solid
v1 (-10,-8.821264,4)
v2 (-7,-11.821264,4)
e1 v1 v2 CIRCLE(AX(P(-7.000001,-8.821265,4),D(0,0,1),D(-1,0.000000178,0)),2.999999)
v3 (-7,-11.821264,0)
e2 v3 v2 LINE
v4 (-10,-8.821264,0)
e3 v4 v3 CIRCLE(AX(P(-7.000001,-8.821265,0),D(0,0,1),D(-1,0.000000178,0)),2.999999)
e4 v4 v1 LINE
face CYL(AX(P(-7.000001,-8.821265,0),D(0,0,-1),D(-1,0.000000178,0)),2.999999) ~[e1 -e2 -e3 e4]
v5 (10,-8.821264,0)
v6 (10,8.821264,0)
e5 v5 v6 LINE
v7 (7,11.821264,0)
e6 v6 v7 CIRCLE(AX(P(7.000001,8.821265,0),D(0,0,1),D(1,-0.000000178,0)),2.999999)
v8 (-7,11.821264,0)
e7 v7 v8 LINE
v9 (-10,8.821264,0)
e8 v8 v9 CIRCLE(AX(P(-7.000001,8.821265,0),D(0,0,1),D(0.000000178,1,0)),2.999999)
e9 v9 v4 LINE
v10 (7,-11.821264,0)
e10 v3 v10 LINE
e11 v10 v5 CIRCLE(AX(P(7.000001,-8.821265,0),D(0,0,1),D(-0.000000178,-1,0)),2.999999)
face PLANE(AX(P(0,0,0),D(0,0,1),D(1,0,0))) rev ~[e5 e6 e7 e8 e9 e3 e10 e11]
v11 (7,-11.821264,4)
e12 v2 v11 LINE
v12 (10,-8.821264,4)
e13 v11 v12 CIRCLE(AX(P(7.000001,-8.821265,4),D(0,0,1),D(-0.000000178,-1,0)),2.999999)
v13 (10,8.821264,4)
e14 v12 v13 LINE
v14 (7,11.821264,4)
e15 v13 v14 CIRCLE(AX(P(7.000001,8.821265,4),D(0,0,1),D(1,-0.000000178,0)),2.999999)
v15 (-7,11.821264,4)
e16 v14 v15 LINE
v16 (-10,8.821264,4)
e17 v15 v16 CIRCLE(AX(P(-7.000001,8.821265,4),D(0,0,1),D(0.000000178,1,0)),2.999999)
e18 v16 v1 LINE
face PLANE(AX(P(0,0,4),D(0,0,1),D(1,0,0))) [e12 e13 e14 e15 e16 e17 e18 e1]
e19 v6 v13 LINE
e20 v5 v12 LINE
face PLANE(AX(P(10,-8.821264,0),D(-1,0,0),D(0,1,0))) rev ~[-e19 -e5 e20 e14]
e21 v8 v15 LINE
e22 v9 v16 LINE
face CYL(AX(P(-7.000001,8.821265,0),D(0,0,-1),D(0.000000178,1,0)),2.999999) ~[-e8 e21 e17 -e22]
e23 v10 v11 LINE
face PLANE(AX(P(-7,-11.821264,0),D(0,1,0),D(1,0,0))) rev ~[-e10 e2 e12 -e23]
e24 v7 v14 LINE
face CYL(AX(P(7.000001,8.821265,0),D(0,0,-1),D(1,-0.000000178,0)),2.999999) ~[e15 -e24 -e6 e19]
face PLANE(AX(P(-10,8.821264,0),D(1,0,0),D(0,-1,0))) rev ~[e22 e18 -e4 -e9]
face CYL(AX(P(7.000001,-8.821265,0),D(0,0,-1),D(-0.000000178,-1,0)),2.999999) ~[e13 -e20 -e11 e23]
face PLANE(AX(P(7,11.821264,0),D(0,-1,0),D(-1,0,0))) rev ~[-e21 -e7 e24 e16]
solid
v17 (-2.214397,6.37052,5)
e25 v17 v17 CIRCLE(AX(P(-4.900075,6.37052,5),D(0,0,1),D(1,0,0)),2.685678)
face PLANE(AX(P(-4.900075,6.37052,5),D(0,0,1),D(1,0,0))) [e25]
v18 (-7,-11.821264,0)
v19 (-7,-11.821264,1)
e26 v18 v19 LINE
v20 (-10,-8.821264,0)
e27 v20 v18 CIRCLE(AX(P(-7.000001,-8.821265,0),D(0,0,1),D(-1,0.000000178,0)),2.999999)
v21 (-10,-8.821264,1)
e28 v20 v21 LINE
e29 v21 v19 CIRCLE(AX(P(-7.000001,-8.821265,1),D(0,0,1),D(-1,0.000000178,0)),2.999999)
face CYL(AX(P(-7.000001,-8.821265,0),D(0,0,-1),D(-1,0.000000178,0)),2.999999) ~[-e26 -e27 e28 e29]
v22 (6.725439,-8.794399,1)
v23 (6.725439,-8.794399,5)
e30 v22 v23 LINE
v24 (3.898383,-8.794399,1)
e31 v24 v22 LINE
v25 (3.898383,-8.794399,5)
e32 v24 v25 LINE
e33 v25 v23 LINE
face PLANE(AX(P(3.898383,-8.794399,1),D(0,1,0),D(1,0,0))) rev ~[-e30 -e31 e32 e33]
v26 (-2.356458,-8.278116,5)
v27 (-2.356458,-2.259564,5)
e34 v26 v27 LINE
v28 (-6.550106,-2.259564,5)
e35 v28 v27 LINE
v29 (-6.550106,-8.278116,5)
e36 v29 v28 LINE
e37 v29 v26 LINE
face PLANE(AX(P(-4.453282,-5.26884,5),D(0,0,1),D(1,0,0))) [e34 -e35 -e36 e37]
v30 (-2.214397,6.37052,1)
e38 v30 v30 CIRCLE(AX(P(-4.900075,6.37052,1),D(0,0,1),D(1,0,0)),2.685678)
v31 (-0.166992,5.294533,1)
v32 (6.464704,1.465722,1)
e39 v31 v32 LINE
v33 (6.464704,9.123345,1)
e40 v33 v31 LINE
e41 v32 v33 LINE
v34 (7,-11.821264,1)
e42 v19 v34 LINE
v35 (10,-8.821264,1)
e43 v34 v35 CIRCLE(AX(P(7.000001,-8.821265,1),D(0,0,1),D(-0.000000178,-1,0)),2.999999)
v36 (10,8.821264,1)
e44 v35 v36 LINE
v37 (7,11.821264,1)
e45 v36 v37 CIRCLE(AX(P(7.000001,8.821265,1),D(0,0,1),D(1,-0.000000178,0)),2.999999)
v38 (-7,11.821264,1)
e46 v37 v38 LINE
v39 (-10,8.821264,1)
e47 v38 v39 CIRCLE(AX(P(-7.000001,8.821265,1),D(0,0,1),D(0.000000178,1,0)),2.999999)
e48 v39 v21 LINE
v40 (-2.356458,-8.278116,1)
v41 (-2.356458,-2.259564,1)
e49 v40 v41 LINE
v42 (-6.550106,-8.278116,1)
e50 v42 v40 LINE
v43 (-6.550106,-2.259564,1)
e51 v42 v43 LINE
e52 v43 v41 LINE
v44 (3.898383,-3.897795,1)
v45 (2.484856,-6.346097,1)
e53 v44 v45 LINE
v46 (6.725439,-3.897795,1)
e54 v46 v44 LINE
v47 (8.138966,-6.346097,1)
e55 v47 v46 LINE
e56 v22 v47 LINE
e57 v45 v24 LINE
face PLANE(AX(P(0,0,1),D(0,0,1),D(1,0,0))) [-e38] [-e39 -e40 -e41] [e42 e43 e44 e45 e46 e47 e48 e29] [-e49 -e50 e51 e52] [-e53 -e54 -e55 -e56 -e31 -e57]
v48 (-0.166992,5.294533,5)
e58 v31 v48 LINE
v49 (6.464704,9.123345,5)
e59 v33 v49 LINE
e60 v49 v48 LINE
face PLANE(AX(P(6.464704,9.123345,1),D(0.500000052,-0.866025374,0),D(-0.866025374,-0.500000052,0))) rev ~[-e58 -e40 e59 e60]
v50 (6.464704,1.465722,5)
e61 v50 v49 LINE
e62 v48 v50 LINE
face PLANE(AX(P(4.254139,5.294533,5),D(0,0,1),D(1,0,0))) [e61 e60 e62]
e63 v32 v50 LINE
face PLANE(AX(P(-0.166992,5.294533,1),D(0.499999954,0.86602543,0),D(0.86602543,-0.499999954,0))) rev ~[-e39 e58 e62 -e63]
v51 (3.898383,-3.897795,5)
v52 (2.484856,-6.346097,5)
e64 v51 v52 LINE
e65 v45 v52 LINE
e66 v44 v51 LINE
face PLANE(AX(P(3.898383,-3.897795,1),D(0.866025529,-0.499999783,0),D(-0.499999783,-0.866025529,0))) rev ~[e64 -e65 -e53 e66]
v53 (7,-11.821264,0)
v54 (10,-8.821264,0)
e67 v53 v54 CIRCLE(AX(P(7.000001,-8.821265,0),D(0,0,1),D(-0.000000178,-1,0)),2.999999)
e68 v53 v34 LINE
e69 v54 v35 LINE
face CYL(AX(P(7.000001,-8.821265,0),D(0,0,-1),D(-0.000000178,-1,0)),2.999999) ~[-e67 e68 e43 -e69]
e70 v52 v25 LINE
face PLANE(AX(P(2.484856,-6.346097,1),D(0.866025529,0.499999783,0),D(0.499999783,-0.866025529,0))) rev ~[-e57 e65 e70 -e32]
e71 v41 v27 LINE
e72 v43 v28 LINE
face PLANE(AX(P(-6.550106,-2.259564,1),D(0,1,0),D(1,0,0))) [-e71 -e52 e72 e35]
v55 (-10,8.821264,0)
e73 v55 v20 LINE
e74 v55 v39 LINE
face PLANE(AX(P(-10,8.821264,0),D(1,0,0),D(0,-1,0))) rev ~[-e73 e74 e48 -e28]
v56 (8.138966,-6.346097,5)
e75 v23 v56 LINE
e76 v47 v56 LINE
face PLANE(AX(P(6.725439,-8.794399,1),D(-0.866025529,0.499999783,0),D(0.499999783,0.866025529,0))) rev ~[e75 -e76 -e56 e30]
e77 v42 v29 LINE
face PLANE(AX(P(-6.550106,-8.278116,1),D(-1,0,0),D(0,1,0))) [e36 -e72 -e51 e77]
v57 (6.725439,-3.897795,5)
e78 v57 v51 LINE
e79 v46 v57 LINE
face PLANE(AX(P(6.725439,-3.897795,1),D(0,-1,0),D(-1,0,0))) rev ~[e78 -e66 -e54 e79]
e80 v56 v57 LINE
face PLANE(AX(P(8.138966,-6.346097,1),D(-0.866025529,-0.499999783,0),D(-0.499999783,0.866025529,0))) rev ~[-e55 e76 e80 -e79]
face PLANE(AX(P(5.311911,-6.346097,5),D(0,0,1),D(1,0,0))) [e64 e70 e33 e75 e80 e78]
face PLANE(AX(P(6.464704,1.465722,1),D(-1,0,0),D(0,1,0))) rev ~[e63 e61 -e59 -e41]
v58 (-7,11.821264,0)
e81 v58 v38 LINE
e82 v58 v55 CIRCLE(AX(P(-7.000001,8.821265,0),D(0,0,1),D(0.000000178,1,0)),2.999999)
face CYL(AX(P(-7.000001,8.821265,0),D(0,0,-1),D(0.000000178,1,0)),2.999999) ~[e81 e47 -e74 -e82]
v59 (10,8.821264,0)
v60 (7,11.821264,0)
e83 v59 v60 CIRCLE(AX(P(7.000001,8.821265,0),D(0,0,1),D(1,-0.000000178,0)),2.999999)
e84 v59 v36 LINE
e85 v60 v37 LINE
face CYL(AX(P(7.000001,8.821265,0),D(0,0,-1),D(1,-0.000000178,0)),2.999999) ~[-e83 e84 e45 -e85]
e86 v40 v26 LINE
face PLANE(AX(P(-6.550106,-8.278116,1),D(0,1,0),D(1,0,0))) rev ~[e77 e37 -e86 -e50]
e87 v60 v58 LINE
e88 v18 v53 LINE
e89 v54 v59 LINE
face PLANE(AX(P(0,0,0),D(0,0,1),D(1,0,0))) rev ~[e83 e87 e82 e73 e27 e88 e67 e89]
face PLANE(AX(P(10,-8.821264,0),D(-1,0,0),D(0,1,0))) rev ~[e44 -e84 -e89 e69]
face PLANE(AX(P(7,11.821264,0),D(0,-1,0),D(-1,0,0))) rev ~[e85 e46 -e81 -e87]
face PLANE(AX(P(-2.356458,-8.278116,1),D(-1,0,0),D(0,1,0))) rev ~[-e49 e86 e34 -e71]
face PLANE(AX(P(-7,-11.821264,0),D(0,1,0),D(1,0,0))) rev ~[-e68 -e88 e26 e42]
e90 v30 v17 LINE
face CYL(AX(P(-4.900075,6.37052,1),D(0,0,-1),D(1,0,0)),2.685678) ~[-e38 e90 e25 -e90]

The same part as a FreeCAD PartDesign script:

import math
import FreeCAD as App
import Part
import Sketcher
Q = App.Units.Quantity

doc = App.newDocument("Part")
body = doc.addObject("PartDesign::Body", "Body")

sketch1 = body.newObject("Sketcher::SketchObject", "Sketch")
sketch1.AttachmentSupport = (doc.getObject("XY_Plane"), [""])
sketch1.MapMode = "FlatFace"
sketch1.addGeometry(Part.LineSegment(App.Vector(-7, -11.821264, 0), App.Vector(7, -11.821264, 0)), False)
sketch1.addGeometry(Part.ArcOfCircle(Part.Circle(App.Vector(7.000001, -8.821265, 0), App.Vector(0, 0, 1), 2.999999), math.radians(-90.00001), math.radians(0.00001)), False)
sketch1.addGeometry(Part.LineSegment(App.Vector(10, -8.821264, 0), App.Vector(10, 8.821264, 0)), False)
sketch1.addGeometry(Part.ArcOfCircle(Part.Circle(App.Vector(7.000001, 8.821265, 0), App.Vector(0, 0, 1), 2.999999), math.radians(-0.00001), math.radians(90.00001)), False)
sketch1.addGeometry(Part.LineSegment(App.Vector(7, 11.821264, 0), App.Vector(-7, 11.821264, 0)), False)
sketch1.addGeometry(Part.ArcOfCircle(Part.Circle(App.Vector(-7.000001, 8.821265, 0), App.Vector(0, 0, 1), 2.999999), math.radians(89.99999), math.radians(180.00001)), False)
sketch1.addGeometry(Part.LineSegment(App.Vector(-10, 8.821264, 0), App.Vector(-10, -8.821264, 0)), False)
sketch1.addGeometry(Part.ArcOfCircle(Part.Circle(App.Vector(-7.000001, -8.821265, 0), App.Vector(0, 0, 1), 2.999999), math.radians(179.99999), math.radians(270.00001)), False)
sketch1.addConstraint(Sketcher.Constraint("Tangent", 0, 2, 1, 1))
sketch1.addConstraint(Sketcher.Constraint("Tangent", 1, 2, 2, 1))
sketch1.addConstraint(Sketcher.Constraint("Tangent", 2, 2, 3, 1))
sketch1.addConstraint(Sketcher.Constraint("Tangent", 3, 2, 4, 1))
sketch1.addConstraint(Sketcher.Constraint("Tangent", 4, 2, 5, 1))
sketch1.addConstraint(Sketcher.Constraint("Tangent", 5, 2, 6, 1))
sketch1.addConstraint(Sketcher.Constraint("Tangent", 6, 2, 7, 1))
sketch1.addConstraint(Sketcher.Constraint("Tangent", 7, 2, 0, 1))
sketch1.addConstraint(Sketcher.Constraint("Horizontal", 0))
sketch1.addConstraint(Sketcher.Constraint("Vertical", 2))
sketch1.addConstraint(Sketcher.Constraint("Horizontal", 4))
sketch1.addConstraint(Sketcher.Constraint("Vertical", 6))
sketch1.addConstraint(Sketcher.Constraint("Equal", 1, 3))
sketch1.addConstraint(Sketcher.Constraint("Equal", 3, 5))
sketch1.addConstraint(Sketcher.Constraint("Equal", 5, 7))
sketch1.addConstraint(Sketcher.Constraint("Symmetric", 1, 3, 5, 3, -1, 1))
sketch1.addConstraint(Sketcher.Constraint("Radius", 1, Q("2.999999 mm")))
sketch1.addConstraint(Sketcher.Constraint("DistanceX", 0, 1, 0, 2, Q("14 mm")))
sketch1.addConstraint(Sketcher.Constraint("DistanceY", 2, 1, 2, 2, Q("17.642528 mm")))
pad1 = body.newObject("PartDesign::Pad", "Pad")
pad1.Profile = sketch1
pad1.Length = 1

sketch2 = body.newObject("Sketcher::SketchObject", "Sketch001")
sketch2.AttachmentSupport = (doc.getObject("XY_Plane"), [""])
sketch2.MapMode = "FlatFace"
sketch2.AttachmentOffset = App.Placement(App.Vector(0, 0, 1), App.Rotation())
sketch2.addGeometry(Part.Circle(App.Vector(-4.900075, 6.37052, 0), App.Vector(0, 0, 1), 2.685678), False)
sketch2.addGeometry(Part.LineSegment(App.Vector(-6.550106, -2.259564, 0), App.Vector(-6.550106, -8.278116, 0)), False)
sketch2.addGeometry(Part.LineSegment(App.Vector(-6.550106, -8.278116, 0), App.Vector(-2.356458, -8.278116, 0)), False)
sketch2.addGeometry(Part.LineSegment(App.Vector(-2.356458, -8.278116, 0), App.Vector(-2.356458, -2.259564, 0)), False)
sketch2.addGeometry(Part.LineSegment(App.Vector(-2.356458, -2.259564, 0), App.Vector(-6.550106, -2.259564, 0)), False)
sketch2.addGeometry(Part.LineSegment(App.Vector(6.725439, -3.897795, 0), App.Vector(3.898383, -3.897795, 0)), False)
sketch2.addGeometry(Part.LineSegment(App.Vector(3.898383, -3.897795, 0), App.Vector(2.484856, -6.346097, 0)), False)
sketch2.addGeometry(Part.LineSegment(App.Vector(2.484856, -6.346097, 0), App.Vector(3.898383, -8.794399, 0)), False)
sketch2.addGeometry(Part.LineSegment(App.Vector(3.898383, -8.794399, 0), App.Vector(6.725439, -8.794399, 0)), False)
sketch2.addGeometry(Part.LineSegment(App.Vector(6.725439, -8.794399, 0), App.Vector(8.138966, -6.346097, 0)), False)
sketch2.addGeometry(Part.LineSegment(App.Vector(8.138966, -6.346097, 0), App.Vector(6.725439, -3.897795, 0)), False)
sketch2.addGeometry(Part.LineSegment(App.Vector(6.464704, 1.465722, 0), App.Vector(6.464704, 9.123345, 0)), False)
sketch2.addGeometry(Part.LineSegment(App.Vector(6.464704, 9.123345, 0), App.Vector(-0.166992, 5.294533, 0)), False)
sketch2.addGeometry(Part.LineSegment(App.Vector(-0.166992, 5.294533, 0), App.Vector(6.464704, 1.465722, 0)), False)
sketch2.addConstraint(Sketcher.Constraint("Coincident", 1, 2, 2, 1))
sketch2.addConstraint(Sketcher.Constraint("Coincident", 2, 2, 3, 1))
sketch2.addConstraint(Sketcher.Constraint("Coincident", 3, 2, 4, 1))
sketch2.addConstraint(Sketcher.Constraint("Coincident", 4, 2, 1, 1))
sketch2.addConstraint(Sketcher.Constraint("Coincident", 5, 2, 6, 1))
sketch2.addConstraint(Sketcher.Constraint("Coincident", 6, 2, 7, 1))
sketch2.addConstraint(Sketcher.Constraint("Coincident", 7, 2, 8, 1))
sketch2.addConstraint(Sketcher.Constraint("Coincident", 8, 2, 9, 1))
sketch2.addConstraint(Sketcher.Constraint("Coincident", 9, 2, 10, 1))
sketch2.addConstraint(Sketcher.Constraint("Coincident", 10, 2, 5, 1))
sketch2.addConstraint(Sketcher.Constraint("Coincident", 11, 2, 12, 1))
sketch2.addConstraint(Sketcher.Constraint("Coincident", 12, 2, 13, 1))
sketch2.addConstraint(Sketcher.Constraint("Coincident", 13, 2, 11, 1))
sketch2.addConstraint(Sketcher.Constraint("Vertical", 1))
sketch2.addConstraint(Sketcher.Constraint("Horizontal", 2))
sketch2.addConstraint(Sketcher.Constraint("Vertical", 3))
sketch2.addConstraint(Sketcher.Constraint("Horizontal", 4))
sketch2.addConstraint(Sketcher.Constraint("Horizontal", 5))
sketch2.addConstraint(Sketcher.Constraint("Horizontal", 8))
sketch2.addConstraint(Sketcher.Constraint("Vertical", 11))
sketch2.addConstraint(Sketcher.Constraint("Parallel", 6, 9))
sketch2.addConstraint(Sketcher.Constraint("Parallel", 7, 10))
sketch2.addConstraint(Sketcher.Constraint("Perpendicular", 10, 12))
sketch2.addConstraint(Sketcher.Constraint("Perpendicular", 9, 13))
sketch2.addConstraint(Sketcher.Constraint("Horizontal", 6, 2, 9, 2))
sketch2.addConstraint(Sketcher.Constraint("Vertical", 5, 2, 7, 2))
sketch2.addConstraint(Sketcher.Constraint("Vertical", 8, 2, 10, 2))
sketch2.addConstraint(Sketcher.Constraint("Angle", 6, Q("-119.999986 deg")))
sketch2.addConstraint(Sketcher.Constraint("Diameter", 0, Q("5.371356 mm")))
sketch2.addConstraint(Sketcher.Constraint("DistanceX", 2, 1, 2, 2, Q("4.193648 mm")))
sketch2.addConstraint(Sketcher.Constraint("DistanceY", 7, 2, -1, 1, Q("8.794399 mm")))
sketch2.addConstraint(Sketcher.Constraint("DistanceY", 7, 2, 6, 2, Q("2.448302 mm")))
sketch2.addConstraint(Sketcher.Constraint("DistanceX", 5, 2, 5, 1, Q("2.827056 mm")))
sketch2.addConstraint(Sketcher.Constraint("DistanceY", 1, 2, 1, 1, Q("6.018553 mm")))
sketch2.addConstraint(Sketcher.Constraint("DistanceY", 11, 1, 11, 2, Q("7.657623 mm")))
sketch2.addConstraint(Sketcher.Constraint("DistanceY", -1, 1, 0, 3, Q("6.37052 mm")))
sketch2.addConstraint(Sketcher.Constraint("DistanceX", -1, 1, 8, 2, Q("6.725439 mm")))
sketch2.addConstraint(Sketcher.Constraint("DistanceX", 1, 2, 0, 3, Q("1.650031 mm")))
sketch2.addConstraint(Sketcher.Constraint("DistanceX", 3, 2, 5, 2, Q("6.254841 mm")))
sketch2.addConstraint(Sketcher.Constraint("DistanceY", 5, 2, 3, 2, Q("1.638231 mm")))
sketch2.addConstraint(Sketcher.Constraint("DistanceX", 0, 3, 11, 2, Q("11.364779 mm")))
sketch2.addConstraint(Sketcher.Constraint("DistanceY", 10, 2, 11, 2, Q("13.02114 mm")))
pad2 = body.newObject("PartDesign::Pad", "Pad001")
pad2.Profile = sketch2
pad2.Length = 4
body2 = doc.addObject("PartDesign::Body", "Body001")

sketch3 = body2.newObject("Sketcher::SketchObject", "Sketch002")
sketch3.AttachmentSupport = (doc.getObject("XY_Plane001"), [""])
sketch3.MapMode = "FlatFace"
sketch3.addGeometry(Part.LineSegment(App.Vector(-7, -11.821264, 0), App.Vector(7, -11.821264, 0)), False)
sketch3.addGeometry(Part.ArcOfCircle(Part.Circle(App.Vector(7.000001, -8.821265, 0), App.Vector(0, 0, 1), 2.999999), math.radians(-90.00001), math.radians(0.00001)), False)
sketch3.addGeometry(Part.LineSegment(App.Vector(10, -8.821264, 0), App.Vector(10, 8.821264, 0)), False)
sketch3.addGeometry(Part.ArcOfCircle(Part.Circle(App.Vector(7.000001, 8.821265, 0), App.Vector(0, 0, 1), 2.999999), math.radians(-0.00001), math.radians(90.00001)), False)
sketch3.addGeometry(Part.LineSegment(App.Vector(7, 11.821264, 0), App.Vector(-7, 11.821264, 0)), False)
sketch3.addGeometry(Part.ArcOfCircle(Part.Circle(App.Vector(-7.000001, 8.821265, 0), App.Vector(0, 0, 1), 2.999999), math.radians(89.99999), math.radians(180.00001)), False)
sketch3.addGeometry(Part.LineSegment(App.Vector(-10, 8.821264, 0), App.Vector(-10, -8.821264, 0)), False)
sketch3.addGeometry(Part.ArcOfCircle(Part.Circle(App.Vector(-7.000001, -8.821265, 0), App.Vector(0, 0, 1), 2.999999), math.radians(179.99999), math.radians(270.00001)), False)
sketch3.addConstraint(Sketcher.Constraint("Tangent", 0, 2, 1, 1))
sketch3.addConstraint(Sketcher.Constraint("Tangent", 1, 2, 2, 1))
sketch3.addConstraint(Sketcher.Constraint("Tangent", 2, 2, 3, 1))
sketch3.addConstraint(Sketcher.Constraint("Tangent", 3, 2, 4, 1))
sketch3.addConstraint(Sketcher.Constraint("Tangent", 4, 2, 5, 1))
sketch3.addConstraint(Sketcher.Constraint("Tangent", 5, 2, 6, 1))
sketch3.addConstraint(Sketcher.Constraint("Tangent", 6, 2, 7, 1))
sketch3.addConstraint(Sketcher.Constraint("Tangent", 7, 2, 0, 1))
sketch3.addConstraint(Sketcher.Constraint("Horizontal", 0))
sketch3.addConstraint(Sketcher.Constraint("Vertical", 2))
sketch3.addConstraint(Sketcher.Constraint("Horizontal", 4))
sketch3.addConstraint(Sketcher.Constraint("Vertical", 6))
sketch3.addConstraint(Sketcher.Constraint("Equal", 1, 3))
sketch3.addConstraint(Sketcher.Constraint("Equal", 3, 5))
sketch3.addConstraint(Sketcher.Constraint("Equal", 5, 7))
sketch3.addConstraint(Sketcher.Constraint("Symmetric", 1, 3, 5, 3, -1, 1))
sketch3.addConstraint(Sketcher.Constraint("Radius", 1, Q("2.999999 mm")))
sketch3.addConstraint(Sketcher.Constraint("DistanceX", 0, 1, 0, 2, Q("14 mm")))
sketch3.addConstraint(Sketcher.Constraint("DistanceY", 2, 1, 2, 2, Q("17.642528 mm")))
pad3 = body2.newObject("PartDesign::Pad", "Pad002")
pad3.Profile = sketch3
pad3.Length = 4

doc.recompute()
